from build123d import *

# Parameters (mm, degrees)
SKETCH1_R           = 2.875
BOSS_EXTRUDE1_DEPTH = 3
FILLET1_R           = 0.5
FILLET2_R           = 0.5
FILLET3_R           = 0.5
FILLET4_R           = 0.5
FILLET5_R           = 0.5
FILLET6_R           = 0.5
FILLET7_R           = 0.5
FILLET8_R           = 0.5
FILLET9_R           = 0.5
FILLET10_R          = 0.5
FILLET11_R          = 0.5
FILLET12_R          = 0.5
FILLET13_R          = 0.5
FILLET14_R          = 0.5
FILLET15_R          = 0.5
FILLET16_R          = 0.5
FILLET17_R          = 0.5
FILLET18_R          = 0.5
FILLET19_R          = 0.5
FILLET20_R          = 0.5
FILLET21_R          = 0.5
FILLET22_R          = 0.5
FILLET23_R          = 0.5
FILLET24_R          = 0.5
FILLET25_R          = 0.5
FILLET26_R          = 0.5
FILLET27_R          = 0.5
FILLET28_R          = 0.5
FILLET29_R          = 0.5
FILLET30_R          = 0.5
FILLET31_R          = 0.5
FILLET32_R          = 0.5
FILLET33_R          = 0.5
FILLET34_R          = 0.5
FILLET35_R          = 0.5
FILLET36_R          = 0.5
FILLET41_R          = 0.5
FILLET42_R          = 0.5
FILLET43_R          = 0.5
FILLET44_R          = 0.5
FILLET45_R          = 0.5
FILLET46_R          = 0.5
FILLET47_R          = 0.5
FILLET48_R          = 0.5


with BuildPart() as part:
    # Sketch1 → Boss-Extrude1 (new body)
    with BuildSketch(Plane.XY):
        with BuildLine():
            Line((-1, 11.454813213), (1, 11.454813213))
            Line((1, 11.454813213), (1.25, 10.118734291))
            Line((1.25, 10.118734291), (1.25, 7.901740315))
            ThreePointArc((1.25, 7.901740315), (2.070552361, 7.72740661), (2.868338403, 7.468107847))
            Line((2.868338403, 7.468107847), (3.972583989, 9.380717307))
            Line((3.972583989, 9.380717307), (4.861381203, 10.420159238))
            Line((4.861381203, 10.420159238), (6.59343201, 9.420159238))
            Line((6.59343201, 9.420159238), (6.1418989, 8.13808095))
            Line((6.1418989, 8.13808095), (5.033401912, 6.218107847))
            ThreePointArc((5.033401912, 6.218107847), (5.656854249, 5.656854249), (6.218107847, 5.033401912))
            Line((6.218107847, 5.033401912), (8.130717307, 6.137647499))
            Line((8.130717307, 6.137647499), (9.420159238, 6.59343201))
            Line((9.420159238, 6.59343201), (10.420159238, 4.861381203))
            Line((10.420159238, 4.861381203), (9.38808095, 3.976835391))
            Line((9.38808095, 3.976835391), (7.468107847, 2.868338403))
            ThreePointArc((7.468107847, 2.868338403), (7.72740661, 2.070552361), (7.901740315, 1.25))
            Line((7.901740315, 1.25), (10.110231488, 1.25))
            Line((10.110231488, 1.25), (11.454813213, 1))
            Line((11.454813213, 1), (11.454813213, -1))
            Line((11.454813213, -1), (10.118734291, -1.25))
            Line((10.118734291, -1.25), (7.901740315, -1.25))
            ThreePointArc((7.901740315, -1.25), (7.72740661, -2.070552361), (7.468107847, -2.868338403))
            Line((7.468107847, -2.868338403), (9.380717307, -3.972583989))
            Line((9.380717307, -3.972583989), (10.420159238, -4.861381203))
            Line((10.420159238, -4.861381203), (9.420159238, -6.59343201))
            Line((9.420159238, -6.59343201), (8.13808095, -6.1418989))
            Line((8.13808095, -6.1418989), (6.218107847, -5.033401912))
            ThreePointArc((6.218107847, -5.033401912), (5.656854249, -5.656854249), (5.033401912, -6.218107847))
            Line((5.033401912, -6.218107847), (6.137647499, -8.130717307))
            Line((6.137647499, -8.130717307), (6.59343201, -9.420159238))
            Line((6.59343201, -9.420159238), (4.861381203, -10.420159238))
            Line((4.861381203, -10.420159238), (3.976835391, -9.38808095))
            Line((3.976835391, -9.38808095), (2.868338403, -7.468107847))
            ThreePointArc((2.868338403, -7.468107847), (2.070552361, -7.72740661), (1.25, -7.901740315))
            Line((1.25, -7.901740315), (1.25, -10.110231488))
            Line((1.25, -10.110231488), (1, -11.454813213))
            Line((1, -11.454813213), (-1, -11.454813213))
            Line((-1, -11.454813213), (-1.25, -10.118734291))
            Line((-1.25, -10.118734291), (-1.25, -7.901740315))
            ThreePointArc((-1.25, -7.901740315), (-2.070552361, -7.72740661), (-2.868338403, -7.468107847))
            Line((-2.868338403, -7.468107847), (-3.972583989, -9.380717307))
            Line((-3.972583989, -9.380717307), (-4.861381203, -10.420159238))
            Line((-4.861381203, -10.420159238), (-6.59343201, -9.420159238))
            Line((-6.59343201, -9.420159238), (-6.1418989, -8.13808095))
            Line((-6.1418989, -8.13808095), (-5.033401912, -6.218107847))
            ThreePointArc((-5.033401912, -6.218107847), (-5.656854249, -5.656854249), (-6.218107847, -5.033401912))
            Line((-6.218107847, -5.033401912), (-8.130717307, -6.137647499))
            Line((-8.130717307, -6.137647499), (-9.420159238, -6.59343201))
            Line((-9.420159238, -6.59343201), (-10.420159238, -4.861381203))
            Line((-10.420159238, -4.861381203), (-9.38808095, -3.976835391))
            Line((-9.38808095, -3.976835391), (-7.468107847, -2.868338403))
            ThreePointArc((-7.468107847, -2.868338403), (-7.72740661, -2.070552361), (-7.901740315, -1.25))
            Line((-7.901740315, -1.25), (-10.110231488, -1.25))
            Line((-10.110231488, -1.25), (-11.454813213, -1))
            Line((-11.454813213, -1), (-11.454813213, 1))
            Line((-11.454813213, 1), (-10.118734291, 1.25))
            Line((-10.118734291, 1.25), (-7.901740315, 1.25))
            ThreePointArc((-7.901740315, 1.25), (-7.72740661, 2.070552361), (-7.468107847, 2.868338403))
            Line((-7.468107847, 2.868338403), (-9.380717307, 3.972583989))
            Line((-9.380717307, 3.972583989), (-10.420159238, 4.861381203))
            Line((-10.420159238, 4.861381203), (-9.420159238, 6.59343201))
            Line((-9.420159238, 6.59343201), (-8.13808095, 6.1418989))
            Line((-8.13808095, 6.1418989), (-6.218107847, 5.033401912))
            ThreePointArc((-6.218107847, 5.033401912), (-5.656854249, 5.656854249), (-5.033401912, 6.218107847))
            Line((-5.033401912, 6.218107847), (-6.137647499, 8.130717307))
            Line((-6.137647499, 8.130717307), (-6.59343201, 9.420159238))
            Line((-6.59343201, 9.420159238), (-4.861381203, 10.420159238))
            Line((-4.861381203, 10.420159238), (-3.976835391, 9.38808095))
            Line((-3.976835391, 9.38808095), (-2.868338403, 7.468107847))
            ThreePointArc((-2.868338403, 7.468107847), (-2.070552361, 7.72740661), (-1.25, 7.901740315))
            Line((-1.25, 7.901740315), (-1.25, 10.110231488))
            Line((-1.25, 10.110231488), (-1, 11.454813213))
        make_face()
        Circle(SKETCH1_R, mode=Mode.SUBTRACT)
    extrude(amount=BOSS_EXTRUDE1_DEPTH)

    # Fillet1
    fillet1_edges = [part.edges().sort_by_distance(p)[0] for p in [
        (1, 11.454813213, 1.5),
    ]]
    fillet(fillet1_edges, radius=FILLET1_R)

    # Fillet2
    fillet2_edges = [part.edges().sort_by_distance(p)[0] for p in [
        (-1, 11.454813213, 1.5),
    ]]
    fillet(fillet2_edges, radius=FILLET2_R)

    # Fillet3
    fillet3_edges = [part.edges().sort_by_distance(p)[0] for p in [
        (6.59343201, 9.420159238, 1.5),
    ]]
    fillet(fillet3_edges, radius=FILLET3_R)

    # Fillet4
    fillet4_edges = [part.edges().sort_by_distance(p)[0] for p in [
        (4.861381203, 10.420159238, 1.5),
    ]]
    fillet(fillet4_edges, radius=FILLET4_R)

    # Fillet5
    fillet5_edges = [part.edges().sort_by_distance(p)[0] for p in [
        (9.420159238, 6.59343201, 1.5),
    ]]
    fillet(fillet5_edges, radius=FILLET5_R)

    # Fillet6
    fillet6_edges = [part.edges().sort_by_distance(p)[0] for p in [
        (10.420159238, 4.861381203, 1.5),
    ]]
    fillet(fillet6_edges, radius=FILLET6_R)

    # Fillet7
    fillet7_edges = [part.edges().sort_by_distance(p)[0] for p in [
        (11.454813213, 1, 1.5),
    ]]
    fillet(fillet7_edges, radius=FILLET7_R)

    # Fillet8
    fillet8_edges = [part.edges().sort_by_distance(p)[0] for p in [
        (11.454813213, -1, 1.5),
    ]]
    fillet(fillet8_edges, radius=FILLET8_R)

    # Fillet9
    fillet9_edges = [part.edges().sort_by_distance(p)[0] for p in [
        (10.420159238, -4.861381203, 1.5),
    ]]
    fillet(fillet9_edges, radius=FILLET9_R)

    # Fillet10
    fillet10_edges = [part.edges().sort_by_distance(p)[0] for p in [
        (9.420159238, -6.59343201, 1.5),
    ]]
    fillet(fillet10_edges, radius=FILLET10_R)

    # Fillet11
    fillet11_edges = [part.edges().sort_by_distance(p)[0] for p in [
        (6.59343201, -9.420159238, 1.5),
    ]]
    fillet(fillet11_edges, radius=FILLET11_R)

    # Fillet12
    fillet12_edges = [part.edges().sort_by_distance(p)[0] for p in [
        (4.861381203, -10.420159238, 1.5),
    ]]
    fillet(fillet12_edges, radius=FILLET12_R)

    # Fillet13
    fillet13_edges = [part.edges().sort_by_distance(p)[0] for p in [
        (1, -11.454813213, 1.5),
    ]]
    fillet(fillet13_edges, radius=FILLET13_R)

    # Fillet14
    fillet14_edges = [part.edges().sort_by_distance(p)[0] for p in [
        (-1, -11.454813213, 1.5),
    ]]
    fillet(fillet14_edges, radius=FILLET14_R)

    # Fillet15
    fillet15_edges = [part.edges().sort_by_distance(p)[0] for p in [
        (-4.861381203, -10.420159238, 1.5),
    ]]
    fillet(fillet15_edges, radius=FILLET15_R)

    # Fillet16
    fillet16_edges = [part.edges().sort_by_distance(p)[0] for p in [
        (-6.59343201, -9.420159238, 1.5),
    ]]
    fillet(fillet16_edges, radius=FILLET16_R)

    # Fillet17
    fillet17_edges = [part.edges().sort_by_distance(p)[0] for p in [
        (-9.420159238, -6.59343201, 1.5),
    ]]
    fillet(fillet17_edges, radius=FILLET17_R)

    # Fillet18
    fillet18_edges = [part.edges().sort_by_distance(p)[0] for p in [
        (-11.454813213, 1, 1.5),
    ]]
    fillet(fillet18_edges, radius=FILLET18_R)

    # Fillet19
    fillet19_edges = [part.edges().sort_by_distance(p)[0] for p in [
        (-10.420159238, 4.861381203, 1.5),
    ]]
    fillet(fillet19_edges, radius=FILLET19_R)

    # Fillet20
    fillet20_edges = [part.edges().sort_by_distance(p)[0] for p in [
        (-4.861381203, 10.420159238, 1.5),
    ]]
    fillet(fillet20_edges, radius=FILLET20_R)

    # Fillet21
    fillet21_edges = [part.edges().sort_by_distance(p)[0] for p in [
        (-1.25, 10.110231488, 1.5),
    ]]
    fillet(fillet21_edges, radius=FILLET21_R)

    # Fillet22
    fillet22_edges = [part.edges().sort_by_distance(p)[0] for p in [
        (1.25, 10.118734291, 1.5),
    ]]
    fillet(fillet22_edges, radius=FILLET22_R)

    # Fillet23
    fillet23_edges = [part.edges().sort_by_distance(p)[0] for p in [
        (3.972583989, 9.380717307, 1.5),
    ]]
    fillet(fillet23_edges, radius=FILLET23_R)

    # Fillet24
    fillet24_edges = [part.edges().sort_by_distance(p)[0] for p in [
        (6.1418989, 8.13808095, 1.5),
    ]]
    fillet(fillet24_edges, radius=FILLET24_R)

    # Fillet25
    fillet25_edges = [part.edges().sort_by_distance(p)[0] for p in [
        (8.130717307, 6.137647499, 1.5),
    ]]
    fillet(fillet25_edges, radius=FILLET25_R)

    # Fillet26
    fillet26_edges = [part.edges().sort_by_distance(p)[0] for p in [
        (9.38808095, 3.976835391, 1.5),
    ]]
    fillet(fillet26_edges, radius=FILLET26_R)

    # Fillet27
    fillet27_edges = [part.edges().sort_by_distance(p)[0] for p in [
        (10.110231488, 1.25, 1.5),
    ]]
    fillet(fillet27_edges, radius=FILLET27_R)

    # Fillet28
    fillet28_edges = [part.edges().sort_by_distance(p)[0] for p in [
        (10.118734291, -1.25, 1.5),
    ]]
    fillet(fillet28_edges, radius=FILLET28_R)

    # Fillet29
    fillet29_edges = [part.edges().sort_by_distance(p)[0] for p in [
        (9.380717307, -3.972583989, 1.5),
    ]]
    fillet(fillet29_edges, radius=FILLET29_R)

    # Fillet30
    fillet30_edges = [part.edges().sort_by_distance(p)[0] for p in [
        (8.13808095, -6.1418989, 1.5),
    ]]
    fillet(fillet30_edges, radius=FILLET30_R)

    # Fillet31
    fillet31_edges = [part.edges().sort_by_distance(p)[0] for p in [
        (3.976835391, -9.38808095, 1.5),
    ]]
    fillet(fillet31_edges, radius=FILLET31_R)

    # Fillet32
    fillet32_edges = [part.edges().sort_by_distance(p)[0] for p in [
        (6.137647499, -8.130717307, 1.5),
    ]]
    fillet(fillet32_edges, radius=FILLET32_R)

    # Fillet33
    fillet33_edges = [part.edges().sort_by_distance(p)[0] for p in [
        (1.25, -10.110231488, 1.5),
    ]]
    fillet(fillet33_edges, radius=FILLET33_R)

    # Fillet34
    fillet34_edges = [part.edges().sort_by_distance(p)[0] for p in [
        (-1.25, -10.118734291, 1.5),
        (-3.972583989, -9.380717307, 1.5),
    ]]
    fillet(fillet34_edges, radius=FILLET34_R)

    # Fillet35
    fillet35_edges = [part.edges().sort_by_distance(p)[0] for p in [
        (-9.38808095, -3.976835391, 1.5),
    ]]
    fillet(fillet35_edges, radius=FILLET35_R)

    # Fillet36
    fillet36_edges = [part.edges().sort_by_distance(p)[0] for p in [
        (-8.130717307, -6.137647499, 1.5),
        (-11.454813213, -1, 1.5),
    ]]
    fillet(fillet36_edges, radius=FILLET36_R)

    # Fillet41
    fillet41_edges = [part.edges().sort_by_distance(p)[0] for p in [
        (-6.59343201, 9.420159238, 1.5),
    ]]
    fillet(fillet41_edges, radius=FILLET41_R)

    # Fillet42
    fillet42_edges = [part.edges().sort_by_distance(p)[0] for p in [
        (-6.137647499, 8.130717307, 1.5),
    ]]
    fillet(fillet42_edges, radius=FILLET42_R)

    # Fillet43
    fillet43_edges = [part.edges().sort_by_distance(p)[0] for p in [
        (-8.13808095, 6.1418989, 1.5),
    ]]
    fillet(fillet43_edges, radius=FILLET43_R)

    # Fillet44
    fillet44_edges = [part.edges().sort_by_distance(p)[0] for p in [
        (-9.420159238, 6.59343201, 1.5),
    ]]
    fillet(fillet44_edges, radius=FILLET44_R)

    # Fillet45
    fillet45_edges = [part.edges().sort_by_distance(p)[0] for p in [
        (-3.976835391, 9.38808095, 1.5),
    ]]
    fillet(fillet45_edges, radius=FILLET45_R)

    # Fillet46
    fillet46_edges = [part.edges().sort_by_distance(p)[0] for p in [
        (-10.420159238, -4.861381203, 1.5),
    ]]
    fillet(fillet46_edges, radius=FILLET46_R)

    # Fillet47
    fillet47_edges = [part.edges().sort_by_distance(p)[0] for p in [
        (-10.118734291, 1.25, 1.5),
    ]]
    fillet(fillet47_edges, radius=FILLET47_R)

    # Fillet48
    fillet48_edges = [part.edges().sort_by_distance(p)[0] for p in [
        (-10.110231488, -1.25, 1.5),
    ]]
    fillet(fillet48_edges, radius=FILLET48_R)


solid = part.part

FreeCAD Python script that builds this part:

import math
import FreeCAD as App
import Part
import Sketcher
Q = App.Units.Quantity


def edges_at(feature, points):
    """Names of the edges that pass closest to the given points."""
    edges = feature.Shape.Edges
    near = lambda p: min(range(len(edges)), key=lambda i: edges[i].distToShape(Part.Vertex(*p))[0])
    return sorted({f"Edge{near(p) + 1}" for p in points})

doc = App.newDocument("Part")
body = doc.addObject("PartDesign::Body", "Body")

sketch1 = doc.addObject("Sketcher::SketchObject", "Sketch")
body.addObject(sketch1)
sketch1.AttachmentSupport = (doc.XY_Plane, [""])
sketch1.MapMode = "FlatFace"
sketch1.addGeometry(Part.LineSegment(App.Vector(1, 11.5, 0), App.Vector(-1, 11.5, 0)), False)
sketch1.addGeometry(Part.LineSegment(App.Vector(-1, 11.5, 0), App.Vector(-1.2, 10.1, 0)), False)
sketch1.addGeometry(Part.LineSegment(App.Vector(-1.2, 10.1, 0), App.Vector(-1.2, 7.9, 0)), False)
sketch1.addGeometry(Part.ArcOfCircle(Part.Circle(App.Vector(0, 0, 0), App.Vector(0, 0, 1), 8), math.radians(98.99), math.radians(111.01)), False)
sketch1.addGeometry(Part.LineSegment(App.Vector(-2.9, 7.5, 0), App.Vector(-4, 9.4, 0)), False)
sketch1.addGeometry(Part.LineSegment(App.Vector(-4, 9.4, 0), App.Vector(-4.9, 10.4, 0)), False)
sketch1.addGeometry(Part.LineSegment(App.Vector(-4.9, 10.4, 0), App.Vector(-6.6, 9.4, 0)), False)
sketch1.addGeometry(Part.LineSegment(App.Vector(-6.6, 9.4, 0), App.Vector(-6.1, 8.1, 0)), False)
sketch1.addGeometry(Part.LineSegment(App.Vector(-6.1, 8.1, 0), App.Vector(-5, 6.2, 0)), False)
sketch1.addGeometry(Part.ArcOfCircle(Part.Circle(App.Vector(0, 0, 0), App.Vector(0, 0, 1), 8), math.radians(128.99), math.radians(141.01)), False)
sketch1.addGeometry(Part.LineSegment(App.Vector(-6.2, 5, 0), App.Vector(-8.1, 6.1, 0)), False)
sketch1.addGeometry(Part.LineSegment(App.Vector(-8.1, 6.1, 0), App.Vector(-9.4, 6.6, 0)), False)
sketch1.addGeometry(Part.LineSegment(App.Vector(-9.4, 6.6, 0), App.Vector(-10.4, 4.9, 0)), False)
sketch1.addGeometry(Part.LineSegment(App.Vector(-10.4, 4.9, 0), App.Vector(-9.4, 4, 0)), False)
sketch1.addGeometry(Part.LineSegment(App.Vector(-9.4, 4, 0), App.Vector(-7.5, 2.9, 0)), False)
sketch1.addGeometry(Part.ArcOfCircle(Part.Circle(App.Vector(0, 0, 0), App.Vector(0, 0, 1), 8), math.radians(158.99), math.radians(171.01)), False)
sketch1.addGeometry(Part.LineSegment(App.Vector(-7.9, 1.2, 0), App.Vector(-10.1, 1.2, 0)), False)
sketch1.addGeometry(Part.LineSegment(App.Vector(-10.1, 1.2, 0), App.Vector(-11.5, 1, 0)), False)
sketch1.addGeometry(Part.LineSegment(App.Vector(-11.5, 1, 0), App.Vector(-11.5, -1, 0)), False)
sketch1.addGeometry(Part.LineSegment(App.Vector(-11.5, -1, 0), App.Vector(-10.1, -1.2, 0)), False)
sketch1.addGeometry(Part.LineSegment(App.Vector(-10.1, -1.2, 0), App.Vector(-7.9, -1.2, 0)), False)
sketch1.addGeometry(Part.ArcOfCircle(Part.Circle(App.Vector(0, 0, 0), App.Vector(0, 0, 1), 8), math.radians(-171.01), math.radians(-158.99)), False)
sketch1.addGeometry(Part.LineSegment(App.Vector(-7.5, -2.9, 0), App.Vector(-9.4, -4, 0)), False)
sketch1.addGeometry(Part.LineSegment(App.Vector(-9.4, -4, 0), App.Vector(-10.4, -4.9, 0)), False)
sketch1.addGeometry(Part.LineSegment(App.Vector(-10.4, -4.9, 0), App.Vector(-9.4, -6.6, 0)), False)
sketch1.addGeometry(Part.LineSegment(App.Vector(-9.4, -6.6, 0), App.Vector(-8.1, -6.1, 0)), False)
sketch1.addGeometry(Part.LineSegment(App.Vector(-8.1, -6.1, 0), App.Vector(-6.2, -5, 0)), False)
sketch1.addGeometry(Part.ArcOfCircle(Part.Circle(App.Vector(0, 0, 0), App.Vector(0, 0, 1), 8), math.radians(-141.01), math.radians(-128.99)), False)
sketch1.addGeometry(Part.LineSegment(App.Vector(-5, -6.2, 0), App.Vector(-6.1, -8.1, 0)), False)
sketch1.addGeometry(Part.LineSegment(App.Vector(-6.1, -8.1, 0), App.Vector(-6.6, -9.4, 0)), False)
sketch1.addGeometry(Part.LineSegment(App.Vector(-6.6, -9.4, 0), App.Vector(-4.9, -10.4, 0)), False)
sketch1.addGeometry(Part.LineSegment(App.Vector(-4.9, -10.4, 0), App.Vector(-4, -9.4, 0)), False)
sketch1.addGeometry(Part.LineSegment(App.Vector(-4, -9.4, 0), App.Vector(-2.9, -7.5, 0)), False)
sketch1.addGeometry(Part.ArcOfCircle(Part.Circle(App.Vector(0, 0, 0), App.Vector(0, 0, 1), 8), math.radians(-111.01), math.radians(-98.99)), False)
sketch1.addGeometry(Part.LineSegment(App.Vector(-1.2, -7.9, 0), App.Vector(-1.2, -10.1, 0)), False)
sketch1.addGeometry(Part.LineSegment(App.Vector(-1.2, -10.1, 0), App.Vector(-1, -11.5, 0)), False)
sketch1.addGeometry(Part.LineSegment(App.Vector(-1, -11.5, 0), App.Vector(1, -11.5, 0)), False)
sketch1.addGeometry(Part.LineSegment(App.Vector(1, -11.5, 0), App.Vector(1.2, -10.1, 0)), False)
sketch1.addGeometry(Part.LineSegment(App.Vector(1.2, -10.1, 0), App.Vector(1.2, -7.9, 0)), False)
sketch1.addGeometry(Part.ArcOfCircle(Part.Circle(App.Vector(0, 0, 0), App.Vector(0, 0, 1), 8), math.radians(-81.01), math.radians(-68.99)), False)
sketch1.addGeometry(Part.LineSegment(App.Vector(2.9, -7.5, 0), App.Vector(4, -9.4, 0)), False)
sketch1.addGeometry(Part.LineSegment(App.Vector(4, -9.4, 0), App.Vector(4.9, -10.4, 0)), False)
sketch1.addGeometry(Part.LineSegment(App.Vector(4.9, -10.4, 0), App.Vector(6.6, -9.4, 0)), False)
sketch1.addGeometry(Part.LineSegment(App.Vector(6.6, -9.4, 0), App.Vector(6.1, -8.1, 0)), False)
sketch1.addGeometry(Part.LineSegment(App.Vector(6.1, -8.1, 0), App.Vector(5, -6.2, 0)), False)
sketch1.addGeometry(Part.ArcOfCircle(Part.Circle(App.Vector(0, 0, 0), App.Vector(0, 0, 1), 8), math.radians(-51.01), math.radians(-38.99)), False)
sketch1.addGeometry(Part.LineSegment(App.Vector(6.2, -5, 0), App.Vector(8.1, -6.1, 0)), False)
sketch1.addGeometry(Part.LineSegment(App.Vector(8.1, -6.1, 0), App.Vector(9.4, -6.6, 0)), False)
sketch1.addGeometry(Part.LineSegment(App.Vector(9.4, -6.6, 0), App.Vector(10.4, -4.9, 0)), False)
sketch1.addGeometry(Part.LineSegment(App.Vector(10.4, -4.9, 0), App.Vector(9.4, -4, 0)), False)
sketch1.addGeometry(Part.LineSegment(App.Vector(9.4, -4, 0), App.Vector(7.5, -2.9, 0)), False)
sketch1.addGeometry(Part.ArcOfCircle(Part.Circle(App.Vector(0, 0, 0), App.Vector(0, 0, 1), 8), math.radians(-21.01), math.radians(-8.99)), False)
sketch1.addGeometry(Part.LineSegment(App.Vector(7.9, -1.2, 0), App.Vector(10.1, -1.2, 0)), False)
sketch1.addGeometry(Part.LineSegment(App.Vector(10.1, -1.2, 0), App.Vector(11.5, -1, 0)), False)
sketch1.addGeometry(Part.LineSegment(App.Vector(11.5, -1, 0), App.Vector(11.5, 1, 0)), False)
sketch1.addGeometry(Part.LineSegment(App.Vector(11.5, 1, 0), App.Vector(10.1, 1.2, 0)), False)
sketch1.addGeometry(Part.LineSegment(App.Vector(10.1, 1.2, 0), App.Vector(7.9, 1.2, 0)), False)
sketch1.addGeometry(Part.ArcOfCircle(Part.Circle(App.Vector(0, 0, 0), App.Vector(0, 0, 1), 8), math.radians(8.99), math.radians(21.01)), False)
sketch1.addGeometry(Part.LineSegment(App.Vector(7.5, 2.9, 0), App.Vector(9.4, 4, 0)), False)
sketch1.addGeometry(Part.LineSegment(App.Vector(9.4, 4, 0), App.Vector(10.4, 4.9, 0)), False)
sketch1.addGeometry(Part.LineSegment(App.Vector(10.4, 4.9, 0), App.Vector(9.4, 6.6, 0)), False)
sketch1.addGeometry(Part.LineSegment(App.Vector(9.4, 6.6, 0), App.Vector(8.1, 6.1, 0)), False)
sketch1.addGeometry(Part.LineSegment(App.Vector(8.1, 6.1, 0), App.Vector(6.2, 5, 0)), False)
sketch1.addGeometry(Part.ArcOfCircle(Part.Circle(App.Vector(0, 0, 0), App.Vector(0, 0, 1), 8), math.radians(38.99), math.radians(51.01)), False)
sketch1.addGeometry(Part.LineSegment(App.Vector(5, 6.2, 0), App.Vector(6.1, 8.1, 0)), False)
sketch1.addGeometry(Part.LineSegment(App.Vector(6.1, 8.1, 0), App.Vector(6.6, 9.4, 0)), False)
sketch1.addGeometry(Part.LineSegment(App.Vector(6.6, 9.4, 0), App.Vector(4.9, 10.4, 0)), False)
sketch1.addGeometry(Part.LineSegment(App.Vector(4.9, 10.4, 0), App.Vector(4, 9.4, 0)), False)
sketch1.addGeometry(Part.LineSegment(App.Vector(4, 9.4, 0), App.Vector(2.9, 7.5, 0)), False)
sketch1.addGeometry(Part.ArcOfCircle(Part.Circle(App.Vector(0, 0, 0), App.Vector(0, 0, 1), 8), math.radians(68.99), math.radians(81.01)), False)
sketch1.addGeometry(Part.LineSegment(App.Vector(1.2, 7.9, 0), App.Vector(1.2, 10.1, 0)), False)
sketch1.addGeometry(Part.LineSegment(App.Vector(1.2, 10.1, 0), App.Vector(1, 11.5, 0)), False)
sketch1.addGeometry(Part.Circle(App.Vector(0, 0, 0), App.Vector(0, 0, 1), 2.9), False)
sketch1.addConstraint(Sketcher.Constraint("Coincident", 0, 2, 1, 1))
sketch1.addConstraint(Sketcher.Constraint("Coincident", 1, 2, 2, 1))
sketch1.addConstraint(Sketcher.Constraint("Coincident", 2, 2, 3, 1))
sketch1.addConstraint(Sketcher.Constraint("Coincident", 3, 2, 4, 1))
sketch1.addConstraint(Sketcher.Constraint("Coincident", 4, 2, 5, 1))
sketch1.addConstraint(Sketcher.Constraint("Coincident", 5, 2, 6, 1))
sketch1.addConstraint(Sketcher.Constraint("Coincident", 6, 2, 7, 1))
sketch1.addConstraint(Sketcher.Constraint("Coincident", 7, 2, 8, 1))
sketch1.addConstraint(Sketcher.Constraint("Coincident", 8, 2, 9, 1))
sketch1.addConstraint(Sketcher.Constraint("Coincident", 9, 2, 10, 1))
sketch1.addConstraint(Sketcher.Constraint("Coincident", 10, 2, 11, 1))
sketch1.addConstraint(Sketcher.Constraint("Coincident", 11, 2, 12, 1))
sketch1.addConstraint(Sketcher.Constraint("Coincident", 12, 2, 13, 1))
sketch1.addConstraint(Sketcher.Constraint("Coincident", 13, 2, 14, 1))
sketch1.addConstraint(Sketcher.Constraint("Coincident", 14, 2, 15, 1))
sketch1.addConstraint(Sketcher.Constraint("Coincident", 15, 2, 16, 1))
sketch1.addConstraint(Sketcher.Constraint("Coincident", 16, 2, 17, 1))
sketch1.addConstraint(Sketcher.Constraint("Coincident", 17, 2, 18, 1))
sketch1.addConstraint(Sketcher.Constraint("Coincident", 18, 2, 19, 1))
sketch1.addConstraint(Sketcher.Constraint("Coincident", 19, 2, 20, 1))
sketch1.addConstraint(Sketcher.Constraint("Coincident", 20, 2, 21, 1))
sketch1.addConstraint(Sketcher.Constraint("Coincident", 21, 2, 22, 1))
sketch1.addConstraint(Sketcher.Constraint("Coincident", 22, 2, 23, 1))
sketch1.addConstraint(Sketcher.Constraint("Coincident", 23, 2, 24, 1))
sketch1.addConstraint(Sketcher.Constraint("Coincident", 24, 2, 25, 1))
sketch1.addConstraint(Sketcher.Constraint("Coincident", 25, 2, 26, 1))
sketch1.addConstraint(Sketcher.Constraint("Coincident", 26, 2, 27, 1))
sketch1.addConstraint(Sketcher.Constraint("Coincident", 27, 2, 28, 1))
sketch1.addConstraint(Sketcher.Constraint("Coincident", 28, 2, 29, 1))
sketch1.addConstraint(Sketcher.Constraint("Coincident", 29, 2, 30, 1))
sketch1.addConstraint(Sketcher.Constraint("Coincident", 30, 2, 31, 1))
sketch1.addConstraint(Sketcher.Constraint("Coincident", 31, 2, 32, 1))
sketch1.addConstraint(Sketcher.Constraint("Coincident", 32, 2, 33, 1))
sketch1.addConstraint(Sketcher.Constraint("Coincident", 33, 2, 34, 1))
sketch1.addConstraint(Sketcher.Constraint("Coincident", 34, 2, 35, 1))
sketch1.addConstraint(Sketcher.Constraint("Coincident", 35, 2, 36, 1))
sketch1.addConstraint(Sketcher.Constraint("Coincident", 36, 2, 37, 1))
sketch1.addConstraint(Sketcher.Constraint("Coincident", 37, 2, 38, 1))
sketch1.addConstraint(Sketcher.Constraint("Coincident", 38, 2, 39, 1))
sketch1.addConstraint(Sketcher.Constraint("Coincident", 39, 2, 40, 1))
sketch1.addConstraint(Sketcher.Constraint("Coincident", 40, 2, 41, 1))
sketch1.addConstraint(Sketcher.Constraint("Coincident", 41, 2, 42, 1))
sketch1.addConstraint(Sketcher.Constraint("Coincident", 42, 2, 43, 1))
sketch1.addConstraint(Sketcher.Constraint("Coincident", 43, 2, 44, 1))
sketch1.addConstraint(Sketcher.Constraint("Coincident", 44, 2, 45, 1))
sketch1.addConstraint(Sketcher.Constraint("Coincident", 45, 2, 46, 1))
sketch1.addConstraint(Sketcher.Constraint("Coincident", 46, 2, 47, 1))
sketch1.addConstraint(Sketcher.Constraint("Coincident", 47, 2, 48, 1))
sketch1.addConstraint(Sketcher.Constraint("Coincident", 48, 2, 49, 1))
sketch1.addConstraint(Sketcher.Constraint("Coincident", 49, 2, 50, 1))
sketch1.addConstraint(Sketcher.Constraint("Coincident", 50, 2, 51, 1))
sketch1.addConstraint(Sketcher.Constraint("Coincident", 51, 2, 52, 1))
sketch1.addConstraint(Sketcher.Constraint("Coincident", 52, 2, 53, 1))
sketch1.addConstraint(Sketcher.Constraint("Coincident", 53, 2, 54, 1))
sketch1.addConstraint(Sketcher.Constraint("Coincident", 54, 2, 55, 1))
sketch1.addConstraint(Sketcher.Constraint("Coincident", 55, 2, 56, 1))
sketch1.addConstraint(Sketcher.Constraint("Coincident", 56, 2, 57, 1))
sketch1.addConstraint(Sketcher.Constraint("Coincident", 57, 2, 58, 1))
sketch1.addConstraint(Sketcher.Constraint("Coincident", 58, 2, 59, 1))
sketch1.addConstraint(Sketcher.Constraint("Coincident", 59, 2, 60, 1))
sketch1.addConstraint(Sketcher.Constraint("Coincident", 60, 2, 61, 1))
sketch1.addConstraint(Sketcher.Constraint("Coincident", 61, 2, 62, 1))
sketch1.addConstraint(Sketcher.Constraint("Coincident", 62, 2, 63, 1))
sketch1.addConstraint(Sketcher.Constraint("Coincident", 63, 2, 64, 1))
sketch1.addConstraint(Sketcher.Constraint("Coincident", 64, 2, 65, 1))
sketch1.addConstraint(Sketcher.Constraint("Coincident", 65, 2, 66, 1))
sketch1.addConstraint(Sketcher.Constraint("Coincident", 66, 2, 67, 1))
sketch1.addConstraint(Sketcher.Constraint("Coincident", 67, 2, 68, 1))
sketch1.addConstraint(Sketcher.Constraint("Coincident", 68, 2, 69, 1))
sketch1.addConstraint(Sketcher.Constraint("Coincident", 69, 2, 70, 1))
sketch1.addConstraint(Sketcher.Constraint("Coincident", 70, 2, 71, 1))
sketch1.addConstraint(Sketcher.Constraint("Coincident", 71, 2, 0, 1))
sketch1.addConstraint(Sketcher.Constraint("Horizontal", 0))
sketch1.addConstraint(Sketcher.Constraint("Vertical", 2))
sketch1.addConstraint(Sketcher.Constraint("Horizontal", 16))
sketch1.addConstraint(Sketcher.Constraint("Vertical", 18))
sketch1.addConstraint(Sketcher.Constraint("Horizontal", 20))
sketch1.addConstraint(Sketcher.Constraint("Vertical", 34))
sketch1.addConstraint(Sketcher.Constraint("Horizontal", 36))
sketch1.addConstraint(Sketcher.Constraint("Vertical", 38))
sketch1.addConstraint(Sketcher.Constraint("Horizontal", 52))
sketch1.addConstraint(Sketcher.Constraint("Vertical", 54))
sketch1.addConstraint(Sketcher.Constraint("Horizontal", 56))
sketch1.addConstraint(Sketcher.Constraint("Vertical", 70))
sketch1.addConstraint(Sketcher.Constraint("Coincident", 3, 3, -1, 1))
sketch1.addConstraint(Sketcher.Constraint("Coincident", 9, 3, -1, 1))
sketch1.addConstraint(Sketcher.Constraint("Coincident", 15, 3, -1, 1))
sketch1.addConstraint(Sketcher.Constraint("Coincident", 21, 3, -1, 1))
sketch1.addConstraint(Sketcher.Constraint("Coincident", 27, 3, -1, 1))
sketch1.addConstraint(Sketcher.Constraint("Coincident", 33, 3, -1, 1))
sketch1.addConstraint(Sketcher.Constraint("Coincident", 39, 3, -1, 1))
sketch1.addConstraint(Sketcher.Constraint("Coincident", 45, 3, -1, 1))
sketch1.addConstraint(Sketcher.Constraint("Coincident", 51, 3, -1, 1))
sketch1.addConstraint(Sketcher.Constraint("Coincident", 57, 3, -1, 1))
sketch1.addConstraint(Sketcher.Constraint("Coincident", 63, 3, -1, 1))
sketch1.addConstraint(Sketcher.Constraint("Coincident", 69, 3, -1, 1))
sketch1.addConstraint(Sketcher.Constraint("Coincident", 72, 3, -1, 1))
sketch1.addConstraint(Sketcher.Constraint("Equal", 3, 9))
sketch1.addConstraint(Sketcher.Constraint("Equal", 9, 15))
sketch1.addConstraint(Sketcher.Constraint("Equal", 15, 21))
sketch1.addConstraint(Sketcher.Constraint("Equal", 21, 27))
sketch1.addConstraint(Sketcher.Constraint("Equal", 27, 33))
sketch1.addConstraint(Sketcher.Constraint("Equal", 33, 39))
sketch1.addConstraint(Sketcher.Constraint("Equal", 39, 45))
sketch1.addConstraint(Sketcher.Constraint("Equal", 45, 51))
sketch1.addConstraint(Sketcher.Constraint("Equal", 51, 57))
sketch1.addConstraint(Sketcher.Constraint("Equal", 57, 63))
sketch1.addConstraint(Sketcher.Constraint("Equal", 63, 69))
sketch1.addConstraint(Sketcher.Constraint("Symmetric", 0, 2, 36, 2, -1, 1))
sketch1.addConstraint(Sketcher.Constraint("Symmetric", 1, 2, 37, 2, -1, 1))
sketch1.addConstraint(Sketcher.Constraint("Symmetric", 4, 2, 40, 2, -1, 1))
sketch1.addConstraint(Sketcher.Constraint("Symmetric", 5, 2, 41, 2, -1, 1))
sketch1.addConstraint(Sketcher.Constraint("Symmetric", 6, 2, 42, 2, -1, 1))
sketch1.addConstraint(Sketcher.Constraint("Symmetric", 7, 2, 43, 2, -1, 1))
sketch1.addConstraint(Sketcher.Constraint("Symmetric", 10, 2, 46, 2, -1, 1))
sketch1.addConstraint(Sketcher.Constraint("Symmetric", 11, 2, 47, 2, -1, 1))
sketch1.addConstraint(Sketcher.Constraint("Symmetric", 12, 2, 48, 2, -1, 1))
sketch1.addConstraint(Sketcher.Constraint("Symmetric", 13, 2, 49, 2, -1, 1))
sketch1.addConstraint(Sketcher.Constraint("Symmetric", 16, 2, 52, 2, -1, 1))
sketch1.addConstraint(Sketcher.Constraint("Symmetric", 17, 2, 53, 2, -1, 1))
sketch1.addConstraint(Sketcher.Constraint("Symmetric", 19, 2, 55, 2, -1, 1))
sketch1.addConstraint(Sketcher.Constraint("Symmetric", 22, 2, 58, 2, -1, 1))
sketch1.addConstraint(Sketcher.Constraint("Symmetric", 23, 2, 59, 2, -1, 1))
sketch1.addConstraint(Sketcher.Constraint("Symmetric", 24, 2, 60, 2, -1, 1))
sketch1.addConstraint(Sketcher.Constraint("Symmetric", 25, 2, 61, 2, -1, 1))
sketch1.addConstraint(Sketcher.Constraint("Symmetric", 28, 2, 64, 2, -1, 1))
sketch1.addConstraint(Sketcher.Constraint("Symmetric", 29, 2, 65, 2, -1, 1))
sketch1.addConstraint(Sketcher.Constraint("Symmetric", 30, 2, 66, 2, -1, 1))
sketch1.addConstraint(Sketcher.Constraint("Symmetric", 31, 2, 67, 2, -1, 1))
sketch1.addConstraint(Sketcher.Constraint("Symmetric", 34, 2, 70, 2, -1, 1))
sketch1.addConstraint(Sketcher.Constraint("Symmetric", 30, 2, 41, 2, -2))
sketch1.addConstraint(Sketcher.Constraint("Symmetric", 29, 2, 42, 2, -2))
sketch1.addConstraint(Sketcher.Constraint("Symmetric", 24, 2, 47, 2, -2))
sketch1.addConstraint(Sketcher.Constraint("Symmetric", 23, 2, 48, 2, -2))
sketch1.addConstraint(Sketcher.Constraint("Perpendicular", 4, 6))
sketch1.addConstraint(Sketcher.Constraint("Perpendicular", 6, 8))
sketch1.addConstraint(Sketcher.Constraint("Perpendicular", 10, 12))
sketch1.addConstraint(Sketcher.Constraint("Perpendicular", 12, 14))
sketch1.addConstraint(Sketcher.Constraint("Perpendicular", 1, 19))
sketch1.addConstraint(Sketcher.Constraint("Perpendicular", 8, 22))
sketch1.addConstraint(Sketcher.Constraint("Perpendicular", 5, 23))
sketch1.addConstraint(Sketcher.Constraint("Perpendicular", 22, 24))
sketch1.addConstraint(Sketcher.Constraint("Perpendicular", 7, 25))
sketch1.addConstraint(Sketcher.Constraint("Perpendicular", 24, 26))
sketch1.addConstraint(Sketcher.Constraint("Perpendicular", 14, 28))
sketch1.addConstraint(Sketcher.Constraint("Perpendicular", 11, 29))
sketch1.addConstraint(Sketcher.Constraint("Perpendicular", 13, 31))
sketch1.addConstraint(Sketcher.Constraint("Perpendicular", 30, 32))
sketch1.addConstraint(Sketcher.Constraint("Perpendicular", 17, 35))
sketch1.addConstraint(Sketcher.Constraint("Perpendicular", 26, 40))
sketch1.addConstraint(Sketcher.Constraint("Perpendicular", 42, 44))
sketch1.addConstraint(Sketcher.Constraint("Perpendicular", 32, 46))
sketch1.addConstraint(Sketcher.Constraint("Perpendicular", 48, 50))
sketch1.addConstraint(Sketcher.Constraint("Perpendicular", 37, 55))
sketch1.addConstraint(Sketcher.Constraint("Perpendicular", 44, 58))
sketch1.addConstraint(Sketcher.Constraint("Perpendicular", 60, 62))
sketch1.addConstraint(Sketcher.Constraint("Perpendicular", 50, 64))
sketch1.addConstraint(Sketcher.Constraint("Perpendicular", 66, 68))
sketch1.addConstraint(Sketcher.Constraint("Perpendicular", 53, 71))
sketch1.addConstraint(Sketcher.Constraint("Horizontal", 33, 2, 38, 2))
sketch1.addConstraint(Sketcher.Constraint("Horizontal", 32, 2, 39, 2))
sketch1.addConstraint(Sketcher.Constraint("Horizontal", 27, 2, 44, 2))
sketch1.addConstraint(Sketcher.Constraint("Horizontal", 26, 2, 45, 2))
sketch1.addConstraint(Sketcher.Constraint("Horizontal", 21, 2, 50, 2))
sketch1.addConstraint(Sketcher.Constraint("Horizontal", 20, 2, 51, 2))
sketch1.addConstraint(Sketcher.Constraint("Horizontal", 18, 2, 53, 2))
sketch1.addConstraint(Sketcher.Constraint("Vertical", 0, 2, 35, 2))
sketch1.addConstraint(Sketcher.Constraint("Equal", 56, 2))
sketch1.addConstraint(Sketcher.Constraint("Equal", 36, 18))
sketch1.addConstraint(Sketcher.Constraint("Equal", 1, 7))
sketch1.addConstraint(Sketcher.Constraint("Equal", 4, 10))
sketch1.addConstraint(Sketcher.Constraint("Equal", 5, 11))
sketch1.addConstraint(Sketcher.Constraint("Equal", 6, 12))
sketch1.addConstraint(Sketcher.Constraint("Equal", 7, 13))
sketch1.addConstraint(Sketcher.Constraint("Equal", 8, 14))
sketch1.addConstraint(Sketcher.Constraint("Equal", 11, 17))
sketch1.addConstraint(Sketcher.Constraint("Equal", 13, 19))
sketch1.addConstraint(Sketcher.Constraint("Equal", 10, 22))
sketch1.addConstraint(Sketcher.Constraint("Equal", 17, 23))
sketch1.addConstraint(Sketcher.Constraint("Equal", 19, 25))
sketch1.addConstraint(Sketcher.Constraint("Radius", 3, 8.0))
sketch1.addConstraint(Sketcher.Constraint("Diameter", 72, 5.75))
sketch1.addConstraint(Sketcher.Constraint("DistanceX", 0, 2, 0, 1, 2.0))
sketch1.addConstraint(Sketcher.Constraint("Angle", 4, Q("120 deg")))
sketch1.addConstraint(Sketcher.Constraint("Distance", 6, 2.0))
sketch1.addConstraint(Sketcher.Constraint("DistanceX", 1, 2, -1, 1, 1.25))
sketch1.addConstraint(Sketcher.Constraint("DistanceX", 20, 1, 20, 2, 2.208491))
sketch1.addConstraint(Sketcher.Constraint("DistanceX", 8, 2, -1, 1, 5.033402))
sketch1.addConstraint(Sketcher.Constraint("DistanceY", -1, 1, 10, 2, 6.141899))
sketch1.addConstraint(Sketcher.Constraint("Distance", 8, 2.208491))
sketch1.addConstraint(Sketcher.Constraint("DistanceX", 3, 2, -1, 1, 2.868338))
sketch1.addConstraint(Sketcher.Constraint("DistanceX", 5, 2, -1, 1, 4.861381))
pad1 = doc.addObject("PartDesign::Pad", "Pad")
body.addObject(pad1)
pad1.Profile = sketch1
pad1.Length = 3
doc.recompute()

fillet = doc.addObject("PartDesign::Fillet", "Fillet")
body.addObject(fillet)
fillet.Base = (pad1, edges_at(pad1, [(1, 11.455, 1.5)]))
fillet.Radius = 0.5
doc.recompute()

fillet2 = doc.addObject("PartDesign::Fillet", "Fillet001")
body.addObject(fillet2)
fillet2.Base = (fillet, edges_at(fillet, [(-1, 11.455, 1.5)]))
fillet2.Radius = 0.5
doc.recompute()

fillet3 = doc.addObject("PartDesign::Fillet", "Fillet002")
body.addObject(fillet3)
fillet3.Base = (fillet2, edges_at(fillet2, [(6.593, 9.42, 1.5)]))
fillet3.Radius = 0.5
doc.recompute()

fillet4 = doc.addObject("PartDesign::Fillet", "Fillet003")
body.addObject(fillet4)
fillet4.Base = (fillet3, edges_at(fillet3, [(4.861, 10.42, 1.5)]))
fillet4.Radius = 0.5
doc.recompute()

fillet5 = doc.addObject("PartDesign::Fillet", "Fillet004")
body.addObject(fillet5)
fillet5.Base = (fillet4, edges_at(fillet4, [(9.42, 6.593, 1.5)]))
fillet5.Radius = 0.5
doc.recompute()

fillet6 = doc.addObject("PartDesign::Fillet", "Fillet005")
body.addObject(fillet6)
fillet6.Base = (fillet5, edges_at(fillet5, [(10.42, 4.861, 1.5)]))
fillet6.Radius = 0.5
doc.recompute()

fillet7 = doc.addObject("PartDesign::Fillet", "Fillet006")
body.addObject(fillet7)
fillet7.Base = (fillet6, edges_at(fillet6, [(11.455, 1, 1.5)]))
fillet7.Radius = 0.5
doc.recompute()

fillet8 = doc.addObject("PartDesign::Fillet", "Fillet007")
body.addObject(fillet8)
fillet8.Base = (fillet7, edges_at(fillet7, [(11.455, -1, 1.5)]))
fillet8.Radius = 0.5
doc.recompute()

fillet9 = doc.addObject("PartDesign::Fillet", "Fillet008")
body.addObject(fillet9)
fillet9.Base = (fillet8, edges_at(fillet8, [(10.42, -4.861, 1.5)]))
fillet9.Radius = 0.5
doc.recompute()

fillet10 = doc.addObject("PartDesign::Fillet", "Fillet009")
body.addObject(fillet10)
fillet10.Base = (fillet9, edges_at(fillet9, [(9.42, -6.593, 1.5)]))
fillet10.Radius = 0.5
doc.recompute()

fillet11 = doc.addObject("PartDesign::Fillet", "Fillet010")
body.addObject(fillet11)
fillet11.Base = (fillet10, edges_at(fillet10, [(6.593, -9.42, 1.5)]))
fillet11.Radius = 0.5
doc.recompute()

fillet12 = doc.addObject("PartDesign::Fillet", "Fillet011")
body.addObject(fillet12)
fillet12.Base = (fillet11, edges_at(fillet11, [(4.861, -10.42, 1.5)]))
fillet12.Radius = 0.5
doc.recompute()

fillet13 = doc.addObject("PartDesign::Fillet", "Fillet012")
body.addObject(fillet13)
fillet13.Base = (fillet12, edges_at(fillet12, [(1, -11.455, 1.5)]))
fillet13.Radius = 0.5
doc.recompute()

fillet14 = doc.addObject("PartDesign::Fillet", "Fillet013")
body.addObject(fillet14)
fillet14.Base = (fillet13, edges_at(fillet13, [(-1, -11.455, 1.5)]))
fillet14.Radius = 0.5
doc.recompute()

fillet15 = doc.addObject("PartDesign::Fillet", "Fillet014")
body.addObject(fillet15)
fillet15.Base = (fillet14, edges_at(fillet14, [(-4.861, -10.42, 1.5)]))
fillet15.Radius = 0.5
doc.recompute()

fillet16 = doc.addObject("PartDesign::Fillet", "Fillet015")
body.addObject(fillet16)
fillet16.Base = (fillet15, edges_at(fillet15, [(-6.593, -9.42, 1.5)]))
fillet16.Radius = 0.5
doc.recompute()

fillet17 = doc.addObject("PartDesign::Fillet", "Fillet016")
body.addObject(fillet17)
fillet17.Base = (fillet16, edges_at(fillet16, [(-9.42, -6.593, 1.5)]))
fillet17.Radius = 0.5
doc.recompute()

fillet18 = doc.addObject("PartDesign::Fillet", "Fillet017")
body.addObject(fillet18)
fillet18.Base = (fillet17, edges_at(fillet17, [(-11.455, 1, 1.5)]))
fillet18.Radius = 0.5
doc.recompute()

fillet19 = doc.addObject("PartDesign::Fillet", "Fillet018")
body.addObject(fillet19)
fillet19.Base = (fillet18, edges_at(fillet18, [(-10.42, 4.861, 1.5)]))
fillet19.Radius = 0.5
doc.recompute()

fillet20 = doc.addObject("PartDesign::Fillet", "Fillet019")
body.addObject(fillet20)
fillet20.Base = (fillet19, edges_at(fillet19, [(-4.861, 10.42, 1.5)]))
fillet20.Radius = 0.5
doc.recompute()

fillet21 = doc.addObject("PartDesign::Fillet", "Fillet020")
body.addObject(fillet21)
fillet21.Base = (fillet20, edges_at(fillet20, [(-1.25, 10.11, 1.5)]))
fillet21.Radius = 0.5
doc.recompute()

fillet22 = doc.addObject("PartDesign::Fillet", "Fillet021")
body.addObject(fillet22)
fillet22.Base = (fillet21, edges_at(fillet21, [(1.25, 10.119, 1.5)]))
fillet22.Radius = 0.5
doc.recompute()

fillet23 = doc.addObject("PartDesign::Fillet", "Fillet022")
body.addObject(fillet23)
fillet23.Base = (fillet22, edges_at(fillet22, [(3.973, 9.381, 1.5)]))
fillet23.Radius = 0.5
doc.recompute()

fillet24 = doc.addObject("PartDesign::Fillet", "Fillet023")
body.addObject(fillet24)
fillet24.Base = (fillet23, edges_at(fillet23, [(6.142, 8.138, 1.5)]))
fillet24.Radius = 0.5
doc.recompute()

fillet25 = doc.addObject("PartDesign::Fillet", "Fillet024")
body.addObject(fillet25)
fillet25.Base = (fillet24, edges_at(fillet24, [(8.131, 6.138, 1.5)]))
fillet25.Radius = 0.5
doc.recompute()

fillet26 = doc.addObject("PartDesign::Fillet", "Fillet025")
body.addObject(fillet26)
fillet26.Base = (fillet25, edges_at(fillet25, [(9.388, 3.977, 1.5)]))
fillet26.Radius = 0.5
doc.recompute()

fillet27 = doc.addObject("PartDesign::Fillet", "Fillet026")
body.addObject(fillet27)
fillet27.Base = (fillet26, edges_at(fillet26, [(10.11, 1.25, 1.5)]))
fillet27.Radius = 0.5
doc.recompute()

fillet28 = doc.addObject("PartDesign::Fillet", "Fillet027")
body.addObject(fillet28)
fillet28.Base = (fillet27, edges_at(fillet27, [(10.119, -1.25, 1.5)]))
fillet28.Radius = 0.5
doc.recompute()

fillet29 = doc.addObject("PartDesign::Fillet", "Fillet028")
body.addObject(fillet29)
fillet29.Base = (fillet28, edges_at(fillet28, [(9.381, -3.973, 1.5)]))
fillet29.Radius = 0.5
doc.recompute()

fillet30 = doc.addObject("PartDesign::Fillet", "Fillet029")
body.addObject(fillet30)
fillet30.Base = (fillet29, edges_at(fillet29, [(8.138, -6.142, 1.5)]))
fillet30.Radius = 0.5
doc.recompute()

fillet31 = doc.addObject("PartDesign::Fillet", "Fillet030")
body.addObject(fillet31)
fillet31.Base = (fillet30, edges_at(fillet30, [(3.977, -9.388, 1.5)]))
fillet31.Radius = 0.5
doc.recompute()

fillet32 = doc.addObject("PartDesign::Fillet", "Fillet031")
body.addObject(fillet32)
fillet32.Base = (fillet31, edges_at(fillet31, [(6.138, -8.131, 1.5)]))
fillet32.Radius = 0.5
doc.recompute()

fillet33 = doc.addObject("PartDesign::Fillet", "Fillet032")
body.addObject(fillet33)
fillet33.Base = (fillet32, edges_at(fillet32, [(1.25, -10.11, 1.5)]))
fillet33.Radius = 0.5
doc.recompute()

fillet34 = doc.addObject("PartDesign::Fillet", "Fillet033")
body.addObject(fillet34)
fillet34.Base = (fillet33, edges_at(fillet33, [(-1.25, -10.119, 1.5), (-3.973, -9.381, 1.5)]))
fillet34.Radius = 0.5
doc.recompute()

fillet35 = doc.addObject("PartDesign::Fillet", "Fillet034")
body.addObject(fillet35)
fillet35.Base = (fillet34, edges_at(fillet34, [(-9.388, -3.977, 1.5)]))
fillet35.Radius = 0.5
doc.recompute()

fillet36 = doc.addObject("PartDesign::Fillet", "Fillet035")
body.addObject(fillet36)
fillet36.Base = (fillet35, edges_at(fillet35, [(-8.131, -6.138, 1.5), (-11.455, -1, 1.5)]))
fillet36.Radius = 0.5
doc.recompute()

fillet37 = doc.addObject("PartDesign::Fillet", "Fillet036")
body.addObject(fillet37)
fillet37.Base = (fillet36, edges_at(fillet36, [(-6.593, 9.42, 1.5)]))
fillet37.Radius = 0.5
doc.recompute()

fillet38 = doc.addObject("PartDesign::Fillet", "Fillet037")
body.addObject(fillet38)
fillet38.Base = (fillet37, edges_at(fillet37, [(-6.138, 8.131, 1.5)]))
fillet38.Radius = 0.5
doc.recompute()

fillet39 = doc.addObject("PartDesign::Fillet", "Fillet038")
body.addObject(fillet39)
fillet39.Base = (fillet38, edges_at(fillet38, [(-8.138, 6.142, 1.5)]))
fillet39.Radius = 0.5
doc.recompute()

fillet40 = doc.addObject("PartDesign::Fillet", "Fillet039")
body.addObject(fillet40)
fillet40.Base = (fillet39, edges_at(fillet39, [(-9.42, 6.593, 1.5)]))
fillet40.Radius = 0.5
doc.recompute()

fillet41 = doc.addObject("PartDesign::Fillet", "Fillet040")
body.addObject(fillet41)
fillet41.Base = (fillet40, edges_at(fillet40, [(-3.977, 9.388, 1.5)]))
fillet41.Radius = 0.5
doc.recompute()

fillet42 = doc.addObject("PartDesign::Fillet", "Fillet041")
body.addObject(fillet42)
fillet42.Base = (fillet41, edges_at(fillet41, [(-10.42, -4.861, 1.5)]))
fillet42.Radius = 0.5
doc.recompute()

fillet43 = doc.addObject("PartDesign::Fillet", "Fillet042")
body.addObject(fillet43)
fillet43.Base = (fillet42, edges_at(fillet42, [(-10.119, 1.25, 1.5)]))
fillet43.Radius = 0.5
doc.recompute()

fillet44 = doc.addObject("PartDesign::Fillet", "Fillet043")
body.addObject(fillet44)
fillet44.Base = (fillet43, edges_at(fillet43, [(-10.11, -1.25, 1.5)]))
fillet44.Radius = 0.5

doc.recompute()
